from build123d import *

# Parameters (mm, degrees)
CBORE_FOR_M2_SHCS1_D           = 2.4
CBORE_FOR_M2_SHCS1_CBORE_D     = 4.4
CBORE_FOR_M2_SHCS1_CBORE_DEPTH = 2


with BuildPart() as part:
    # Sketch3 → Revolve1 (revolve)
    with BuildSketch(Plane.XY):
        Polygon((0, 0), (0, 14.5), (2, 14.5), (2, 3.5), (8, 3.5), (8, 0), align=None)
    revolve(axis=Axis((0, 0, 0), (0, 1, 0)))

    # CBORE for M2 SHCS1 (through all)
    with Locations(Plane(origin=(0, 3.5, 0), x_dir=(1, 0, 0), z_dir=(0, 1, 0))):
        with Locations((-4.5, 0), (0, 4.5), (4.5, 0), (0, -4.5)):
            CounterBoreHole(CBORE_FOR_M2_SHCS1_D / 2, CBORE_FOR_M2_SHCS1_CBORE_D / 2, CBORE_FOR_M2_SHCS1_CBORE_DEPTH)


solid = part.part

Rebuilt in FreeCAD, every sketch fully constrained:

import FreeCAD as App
import Part
import Sketcher

doc = App.newDocument("Part")
params = doc.addObject("Spreadsheet::Sheet", "Params")
for row, (alias, value) in enumerate([
    ("sketch1_width", "8 mm"),
    ("sketch1_width2", "6 mm"),
    ("sketch1_height", "11 mm"),
    ("sketch1_height2", "14.5 mm"),
    ("revolution_angle", "360 deg"),
    ("sketch2_diameter", "2.4 mm"),
    ("hole_diameter", "2.4 mm"),
    ("hole_cbore_diameter", "4.4 mm"),
    ("hole_cbore_depth", "2 mm"),
], start=1):
    params.set(f"A{row}", alias)
    params.set(f"B{row}", "=" + value)
    params.setAlias(f"B{row}", alias)

body = doc.addObject("PartDesign::Body", "Body")

# Sketch on XY plane
sketch1 = body.newObject("Sketcher::SketchObject", "Sketch")
sketch1.AttachmentSupport = (doc.getObject("XY_Plane"), [""])
sketch1.MapMode = "FlatFace"
sketch1.addGeometry([
    Part.LineSegment(App.Vector(0, 14.5, 0), App.Vector(0, 0, 0)),  # 0
    Part.LineSegment(App.Vector(0, 0, 0), App.Vector(8, 0, 0)),  # 1
    Part.LineSegment(App.Vector(8, 0, 0), App.Vector(8, 3.5, 0)),  # 2
    Part.LineSegment(App.Vector(8, 3.5, 0), App.Vector(2, 3.5, 0)),  # 3
    Part.LineSegment(App.Vector(2, 3.5, 0), App.Vector(2, 14.5, 0)),  # 4
    Part.LineSegment(App.Vector(2, 14.5, 0), App.Vector(0, 14.5, 0)),  # 5
], False)
sketch1.addConstraint([
    Sketcher.Constraint("Coincident", 0, 2, 1, 1),
    Sketcher.Constraint("Coincident", 1, 2, 2, 1),
    Sketcher.Constraint("Coincident", 2, 2, 3, 1),
    Sketcher.Constraint("Coincident", 3, 2, 4, 1),
    Sketcher.Constraint("Coincident", 4, 2, 5, 1),
    Sketcher.Constraint("Coincident", 5, 2, 0, 1),
    Sketcher.Constraint("Vertical", 0),
    Sketcher.Constraint("Horizontal", 1),
    Sketcher.Constraint("Vertical", 2),
    Sketcher.Constraint("Horizontal", 3),
    Sketcher.Constraint("Vertical", 4),
    Sketcher.Constraint("Horizontal", 5),
    Sketcher.Constraint("Coincident", 0, 2, -1, 1),
    Sketcher.Constraint("DistanceX", 1, 1, 1, 2, 8.0),
    Sketcher.Constraint("DistanceX", 3, 2, 3, 1, 6.0),
    Sketcher.Constraint("DistanceY", 4, 1, 4, 2, 11.0),
    Sketcher.Constraint("DistanceY", 0, 2, 0, 1, 14.5),
])
sketch1.setExpression("Constraints[13]", "Params.sketch1_width")
sketch1.setExpression("Constraints[14]", "Params.sketch1_width2")
sketch1.setExpression("Constraints[15]", "Params.sketch1_height")
sketch1.setExpression("Constraints[16]", "Params.sketch1_height2")
revolution = body.newObject("PartDesign::Revolution", "Revolution")
revolution.Profile = sketch1
revolution.ReferenceAxis = (sketch1, ["V_Axis"])
revolution.setExpression("Angle", "Params.revolution_angle")

# Sketch on XZ plane
sketch2 = body.newObject("Sketcher::SketchObject", "Sketch001")
sketch2.AttachmentSupport = (doc.getObject("XZ_Plane"), [""])
sketch2.MapMode = "FlatFace"
sketch2.AttachmentOffset = App.Placement(App.Vector(0, 0, -3.5), App.Rotation())
sketch2.addGeometry([
    Part.Circle(App.Vector(-4.5, 0, 0), App.Vector(0, 0, 1), 1.2),
    Part.Circle(App.Vector(0, -4.5, 0), App.Vector(0, 0, 1), 1.2),
    Part.Circle(App.Vector(4.5, 0, 0), App.Vector(0, 0, 1), 1.2),
    Part.Circle(App.Vector(0, 4.5, 0), App.Vector(0, 0, 1), 1.2),
], False)
sketch2.addConstraint([
    Sketcher.Constraint("Equal", 0, 1),
    Sketcher.Constraint("Equal", 1, 2),
    Sketcher.Constraint("Equal", 2, 3),
    Sketcher.Constraint("Symmetric", 0, 3, 2, 3, -1, 1),
    Sketcher.Constraint("Symmetric", 1, 3, 3, 3, -1, 1),
    Sketcher.Constraint("PointOnObject", 0, 3, -1),
    Sketcher.Constraint("PointOnObject", 1, 3, -2),
    Sketcher.Constraint("Diameter", 0, 2.4),
    Sketcher.Constraint("DistanceX", 0, 3, 2, 3, 9.0),
    Sketcher.Constraint("DistanceY", 1, 3, 3, 3, 9.0),
])
sketch2.setExpression("Constraints[7]", "Params.sketch2_diameter")
doc.recompute()
hole = body.newObject("PartDesign::Hole", "Hole")
hole.Profile = sketch2
hole.ThreadType = "None"
hole.setExpression("Diameter", "Params.hole_diameter")
hole.DepthType = "ThroughAll"
hole.HoleCutType = "Counterbore"
hole.setExpression("HoleCutDiameter", "Params.hole_cbore_diameter")
hole.setExpression("HoleCutDepth", "Params.hole_cbore_depth")
hole.Reversed = True

doc.recompute()
